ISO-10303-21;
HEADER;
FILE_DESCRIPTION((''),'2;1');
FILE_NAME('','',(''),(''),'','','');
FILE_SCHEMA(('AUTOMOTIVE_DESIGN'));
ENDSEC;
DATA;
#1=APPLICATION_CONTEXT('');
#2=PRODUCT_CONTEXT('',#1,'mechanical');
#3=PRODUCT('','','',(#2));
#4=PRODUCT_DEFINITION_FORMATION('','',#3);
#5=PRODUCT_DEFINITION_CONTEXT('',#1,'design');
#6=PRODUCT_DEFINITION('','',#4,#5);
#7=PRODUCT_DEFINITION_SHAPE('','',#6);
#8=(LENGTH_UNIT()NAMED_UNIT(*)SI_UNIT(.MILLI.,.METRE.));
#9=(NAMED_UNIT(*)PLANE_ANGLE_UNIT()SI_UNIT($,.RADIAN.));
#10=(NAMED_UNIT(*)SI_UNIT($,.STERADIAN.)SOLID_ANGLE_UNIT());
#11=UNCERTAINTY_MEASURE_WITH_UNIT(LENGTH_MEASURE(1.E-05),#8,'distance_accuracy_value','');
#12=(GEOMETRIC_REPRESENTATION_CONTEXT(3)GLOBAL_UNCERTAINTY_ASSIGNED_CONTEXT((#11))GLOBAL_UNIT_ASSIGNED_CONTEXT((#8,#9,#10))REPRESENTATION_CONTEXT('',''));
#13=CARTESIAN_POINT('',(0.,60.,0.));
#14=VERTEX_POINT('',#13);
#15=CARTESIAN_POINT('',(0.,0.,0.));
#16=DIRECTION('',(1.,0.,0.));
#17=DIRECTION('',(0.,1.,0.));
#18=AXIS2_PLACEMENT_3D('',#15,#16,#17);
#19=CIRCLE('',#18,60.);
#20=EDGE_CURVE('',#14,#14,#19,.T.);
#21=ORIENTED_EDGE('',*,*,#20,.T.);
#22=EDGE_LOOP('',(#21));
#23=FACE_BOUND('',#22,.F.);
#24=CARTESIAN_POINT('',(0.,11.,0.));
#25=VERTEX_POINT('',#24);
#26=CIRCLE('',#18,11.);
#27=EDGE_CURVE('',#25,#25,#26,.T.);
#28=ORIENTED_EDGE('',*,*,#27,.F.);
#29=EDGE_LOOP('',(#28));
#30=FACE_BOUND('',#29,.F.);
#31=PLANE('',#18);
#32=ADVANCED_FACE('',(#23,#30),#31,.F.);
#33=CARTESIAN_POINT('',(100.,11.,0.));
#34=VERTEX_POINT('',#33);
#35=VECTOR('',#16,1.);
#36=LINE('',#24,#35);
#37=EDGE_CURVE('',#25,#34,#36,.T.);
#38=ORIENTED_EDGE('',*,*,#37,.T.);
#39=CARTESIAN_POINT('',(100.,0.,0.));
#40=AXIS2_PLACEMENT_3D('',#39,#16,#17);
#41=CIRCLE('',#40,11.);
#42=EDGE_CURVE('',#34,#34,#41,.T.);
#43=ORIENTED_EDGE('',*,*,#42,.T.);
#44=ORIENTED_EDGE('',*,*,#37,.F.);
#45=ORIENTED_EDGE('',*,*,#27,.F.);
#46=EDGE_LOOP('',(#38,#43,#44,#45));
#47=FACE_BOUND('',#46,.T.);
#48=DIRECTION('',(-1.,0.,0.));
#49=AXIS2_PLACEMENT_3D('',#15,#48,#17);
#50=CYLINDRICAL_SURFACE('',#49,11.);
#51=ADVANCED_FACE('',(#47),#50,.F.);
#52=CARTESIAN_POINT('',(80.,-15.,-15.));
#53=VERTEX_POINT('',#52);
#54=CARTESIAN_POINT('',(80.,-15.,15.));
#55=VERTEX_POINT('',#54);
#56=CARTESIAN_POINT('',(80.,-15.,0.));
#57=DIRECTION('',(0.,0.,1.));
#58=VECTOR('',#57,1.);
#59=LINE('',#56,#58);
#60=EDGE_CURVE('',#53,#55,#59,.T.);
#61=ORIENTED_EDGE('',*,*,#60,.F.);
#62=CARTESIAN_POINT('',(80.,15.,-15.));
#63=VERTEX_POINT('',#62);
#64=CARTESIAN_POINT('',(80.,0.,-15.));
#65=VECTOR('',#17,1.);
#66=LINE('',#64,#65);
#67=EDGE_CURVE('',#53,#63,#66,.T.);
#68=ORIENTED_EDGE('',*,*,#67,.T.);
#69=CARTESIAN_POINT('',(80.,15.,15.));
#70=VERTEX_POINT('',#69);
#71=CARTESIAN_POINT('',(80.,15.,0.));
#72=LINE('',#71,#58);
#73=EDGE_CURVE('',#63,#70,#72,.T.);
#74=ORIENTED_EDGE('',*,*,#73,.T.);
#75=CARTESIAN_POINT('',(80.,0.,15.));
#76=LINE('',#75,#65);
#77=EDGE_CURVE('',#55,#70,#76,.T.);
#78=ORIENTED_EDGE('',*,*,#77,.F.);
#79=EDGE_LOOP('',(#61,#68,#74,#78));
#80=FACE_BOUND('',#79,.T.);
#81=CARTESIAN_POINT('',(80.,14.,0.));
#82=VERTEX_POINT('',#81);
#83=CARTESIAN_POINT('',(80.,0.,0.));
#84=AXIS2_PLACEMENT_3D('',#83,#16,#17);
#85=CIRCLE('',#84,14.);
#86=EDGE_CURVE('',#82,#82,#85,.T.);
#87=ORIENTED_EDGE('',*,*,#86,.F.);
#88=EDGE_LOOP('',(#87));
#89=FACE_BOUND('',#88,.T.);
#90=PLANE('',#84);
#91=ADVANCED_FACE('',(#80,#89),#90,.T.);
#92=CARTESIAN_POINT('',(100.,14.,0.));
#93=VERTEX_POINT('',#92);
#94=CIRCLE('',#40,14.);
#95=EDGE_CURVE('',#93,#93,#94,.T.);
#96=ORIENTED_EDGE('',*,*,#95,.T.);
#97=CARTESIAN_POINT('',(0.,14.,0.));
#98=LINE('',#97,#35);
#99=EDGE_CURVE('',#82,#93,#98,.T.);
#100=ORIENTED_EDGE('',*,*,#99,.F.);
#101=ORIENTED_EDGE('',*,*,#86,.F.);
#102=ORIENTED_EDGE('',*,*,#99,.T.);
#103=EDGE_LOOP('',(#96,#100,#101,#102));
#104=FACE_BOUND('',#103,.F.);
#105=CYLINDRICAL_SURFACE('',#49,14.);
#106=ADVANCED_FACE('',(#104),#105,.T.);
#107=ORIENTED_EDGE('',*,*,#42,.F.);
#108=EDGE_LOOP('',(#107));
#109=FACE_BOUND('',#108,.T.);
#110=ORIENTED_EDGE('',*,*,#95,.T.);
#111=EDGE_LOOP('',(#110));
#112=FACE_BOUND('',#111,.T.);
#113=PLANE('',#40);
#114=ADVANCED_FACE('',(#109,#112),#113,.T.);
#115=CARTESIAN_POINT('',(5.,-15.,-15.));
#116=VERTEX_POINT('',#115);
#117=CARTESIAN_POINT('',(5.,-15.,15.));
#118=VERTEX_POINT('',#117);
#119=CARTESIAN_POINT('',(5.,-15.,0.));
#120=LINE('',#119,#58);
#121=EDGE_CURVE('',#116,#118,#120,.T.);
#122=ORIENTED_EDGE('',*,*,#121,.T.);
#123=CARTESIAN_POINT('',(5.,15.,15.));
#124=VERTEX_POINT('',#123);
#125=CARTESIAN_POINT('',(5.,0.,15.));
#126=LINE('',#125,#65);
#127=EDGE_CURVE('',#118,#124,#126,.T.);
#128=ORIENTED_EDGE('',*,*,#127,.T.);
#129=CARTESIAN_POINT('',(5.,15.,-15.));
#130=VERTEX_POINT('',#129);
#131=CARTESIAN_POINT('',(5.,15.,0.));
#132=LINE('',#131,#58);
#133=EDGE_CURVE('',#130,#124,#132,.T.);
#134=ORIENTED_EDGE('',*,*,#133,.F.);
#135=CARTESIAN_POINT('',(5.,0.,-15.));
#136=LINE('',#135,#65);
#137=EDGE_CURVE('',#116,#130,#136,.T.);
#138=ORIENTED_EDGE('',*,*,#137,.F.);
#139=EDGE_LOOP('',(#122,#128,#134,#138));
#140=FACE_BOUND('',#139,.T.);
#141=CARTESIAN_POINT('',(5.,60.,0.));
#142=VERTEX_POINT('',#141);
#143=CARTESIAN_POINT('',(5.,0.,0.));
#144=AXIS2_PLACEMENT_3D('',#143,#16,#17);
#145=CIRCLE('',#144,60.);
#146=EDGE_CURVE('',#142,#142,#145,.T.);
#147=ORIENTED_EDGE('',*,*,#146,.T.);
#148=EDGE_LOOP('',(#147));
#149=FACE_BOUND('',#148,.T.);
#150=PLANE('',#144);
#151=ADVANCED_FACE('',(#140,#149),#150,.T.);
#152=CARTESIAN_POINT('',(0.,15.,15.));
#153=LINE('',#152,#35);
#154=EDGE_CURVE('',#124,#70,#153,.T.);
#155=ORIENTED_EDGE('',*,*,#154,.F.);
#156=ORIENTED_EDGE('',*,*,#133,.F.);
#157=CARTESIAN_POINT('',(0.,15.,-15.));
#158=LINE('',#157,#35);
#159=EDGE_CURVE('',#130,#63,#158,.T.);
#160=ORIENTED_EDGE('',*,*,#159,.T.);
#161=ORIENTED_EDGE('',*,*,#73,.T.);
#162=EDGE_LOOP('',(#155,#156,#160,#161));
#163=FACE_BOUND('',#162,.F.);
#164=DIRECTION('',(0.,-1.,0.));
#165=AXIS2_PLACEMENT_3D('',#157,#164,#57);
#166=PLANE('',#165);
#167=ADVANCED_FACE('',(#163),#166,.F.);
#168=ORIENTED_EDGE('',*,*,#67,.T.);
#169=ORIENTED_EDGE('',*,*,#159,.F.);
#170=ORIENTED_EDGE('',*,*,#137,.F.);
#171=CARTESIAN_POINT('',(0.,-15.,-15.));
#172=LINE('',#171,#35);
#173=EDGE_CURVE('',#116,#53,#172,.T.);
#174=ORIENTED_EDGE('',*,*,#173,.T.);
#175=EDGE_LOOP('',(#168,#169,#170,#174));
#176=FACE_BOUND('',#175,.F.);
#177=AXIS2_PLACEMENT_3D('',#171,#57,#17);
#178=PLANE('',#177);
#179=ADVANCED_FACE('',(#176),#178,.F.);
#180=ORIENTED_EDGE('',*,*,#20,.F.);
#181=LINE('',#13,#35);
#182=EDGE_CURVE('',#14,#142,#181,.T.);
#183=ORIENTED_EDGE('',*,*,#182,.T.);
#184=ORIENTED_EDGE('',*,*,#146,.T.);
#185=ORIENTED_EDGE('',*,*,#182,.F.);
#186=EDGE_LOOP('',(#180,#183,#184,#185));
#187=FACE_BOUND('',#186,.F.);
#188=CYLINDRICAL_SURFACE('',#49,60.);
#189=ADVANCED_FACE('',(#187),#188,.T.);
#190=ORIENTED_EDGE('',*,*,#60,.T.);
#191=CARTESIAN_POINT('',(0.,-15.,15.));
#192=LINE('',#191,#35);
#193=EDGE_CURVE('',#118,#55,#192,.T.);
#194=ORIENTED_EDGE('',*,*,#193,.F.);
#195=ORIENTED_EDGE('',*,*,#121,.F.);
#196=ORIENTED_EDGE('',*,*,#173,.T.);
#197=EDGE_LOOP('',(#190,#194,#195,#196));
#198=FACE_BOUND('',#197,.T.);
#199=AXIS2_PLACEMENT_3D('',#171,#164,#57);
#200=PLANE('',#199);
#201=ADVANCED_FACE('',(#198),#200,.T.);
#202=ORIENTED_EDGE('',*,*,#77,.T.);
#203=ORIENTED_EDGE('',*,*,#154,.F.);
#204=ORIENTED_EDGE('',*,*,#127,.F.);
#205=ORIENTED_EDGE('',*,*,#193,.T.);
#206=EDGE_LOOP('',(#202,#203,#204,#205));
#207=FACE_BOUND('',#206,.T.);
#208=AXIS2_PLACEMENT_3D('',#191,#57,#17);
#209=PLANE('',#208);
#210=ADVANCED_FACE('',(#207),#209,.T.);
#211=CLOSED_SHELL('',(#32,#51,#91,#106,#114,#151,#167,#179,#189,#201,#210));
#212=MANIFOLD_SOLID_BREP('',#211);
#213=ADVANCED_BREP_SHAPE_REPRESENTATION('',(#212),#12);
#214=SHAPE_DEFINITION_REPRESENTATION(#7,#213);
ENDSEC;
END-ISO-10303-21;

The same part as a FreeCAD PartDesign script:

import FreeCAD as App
import Part
import Sketcher

V = App.Vector
Q = App.Units.Quantity


def add_polygon(sketch, points):
    """Adds a closed chain of lines whose ends are joined by coincident constraints."""
    first, n = sketch.GeometryCount, len(points)
    for a, b in zip(points, points[1:] + points[:1]):
        sketch.addGeometry(Part.LineSegment(App.Vector(*a, 0), App.Vector(*b, 0)), False)
    for i in range(n):
        sketch.addConstraint(Sketcher.Constraint("Coincident", first + i, 2, first + (i + 1) % n, 1))

doc = App.newDocument("Part")
body = doc.addObject("PartDesign::Body", "Body")

# Sketch on YZ plane
sketch1 = doc.addObject("Sketcher::SketchObject", "Sketch")
body.addObject(sketch1)
sketch1.AttachmentSupport = (doc.YZ_Plane, [""])
sketch1.MapMode = "FlatFace"
sketch1.addGeometry([
    Part.Circle(V(0, 0, 0), V(0, 0, 1), 14),
    Part.Circle(V(0, 0, 0), V(0, 0, 1), 11),
], False)
sketch1.addConstraint([
    Sketcher.Constraint("Coincident", 0, 3, -1, 1),
    Sketcher.Constraint("Coincident", 1, 3, -1, 1),
    Sketcher.Constraint("Diameter", 0, Q("28 mm")),
    Sketcher.Constraint("Diameter", 1, Q("22 mm")),
])
pad1 = doc.addObject("PartDesign::Pad", "Pad")
body.addObject(pad1)
pad1.Profile = sketch1
pad1.Length = 100

# Sketch on YZ plane
sketch2 = doc.addObject("Sketcher::SketchObject", "Sketch001")
body.addObject(sketch2)
sketch2.AttachmentSupport = (doc.YZ_Plane, [""])
sketch2.MapMode = "FlatFace"
add_polygon(sketch2, [(-15, 15), (-15, -15), (15, -15), (15, 15)])  # lines 0-3
sketch2.addGeometry(Part.Circle(V(0, 0, 0), V(0, 0, 1), 14), False)  # 4
sketch2.addConstraint([
    Sketcher.Constraint("Vertical", 0),
    Sketcher.Constraint("Horizontal", 1),
    Sketcher.Constraint("Vertical", 2),
    Sketcher.Constraint("Horizontal", 3),
    Sketcher.Constraint("Coincident", 4, 3, -1, 1),
    Sketcher.Constraint("Symmetric", 0, 2, 2, 2, -1, 1),
    Sketcher.Constraint("Equal", 3, 0),
    Sketcher.Constraint("Diameter", 4, Q("28 mm")),
    Sketcher.Constraint("DistanceX", 1, 1, 1, 2, Q("30 mm")),
])
pad2 = doc.addObject("PartDesign::Pad", "Pad001")
body.addObject(pad2)
pad2.Profile = sketch2
pad2.Length = 80

# Sketch on YZ plane
sketch3 = doc.addObject("Sketcher::SketchObject", "Sketch002")
body.addObject(sketch3)
sketch3.AttachmentSupport = (doc.YZ_Plane, [""])
sketch3.MapMode = "FlatFace"
sketch3.addGeometry(Part.Circle(V(0, 0, 0), V(0, 0, 1), 60), False)  # 0
add_polygon(sketch3, [(15, -15), (-15, -15), (-15, 15), (15, 15)])  # lines 1-4
sketch3.addConstraint([
    Sketcher.Constraint("Horizontal", 1),
    Sketcher.Constraint("Vertical", 2),
    Sketcher.Constraint("Horizontal", 3),
    Sketcher.Constraint("Vertical", 4),
    Sketcher.Constraint("Coincident", 0, 3, -1, 1),
    Sketcher.Constraint("Symmetric", 1, 2, 3, 2, -1, 1),
    Sketcher.Constraint("Equal", 3, 2),
    Sketcher.Constraint("Diameter", 0, Q("120 mm")),
    Sketcher.Constraint("DistanceX", 1, 2, 1, 1, Q("30 mm")),
])
pad3 = doc.addObject("PartDesign::Pad", "Pad002")
body.addObject(pad3)
pad3.Profile = sketch3
pad3.Length = 5

doc.recompute()
